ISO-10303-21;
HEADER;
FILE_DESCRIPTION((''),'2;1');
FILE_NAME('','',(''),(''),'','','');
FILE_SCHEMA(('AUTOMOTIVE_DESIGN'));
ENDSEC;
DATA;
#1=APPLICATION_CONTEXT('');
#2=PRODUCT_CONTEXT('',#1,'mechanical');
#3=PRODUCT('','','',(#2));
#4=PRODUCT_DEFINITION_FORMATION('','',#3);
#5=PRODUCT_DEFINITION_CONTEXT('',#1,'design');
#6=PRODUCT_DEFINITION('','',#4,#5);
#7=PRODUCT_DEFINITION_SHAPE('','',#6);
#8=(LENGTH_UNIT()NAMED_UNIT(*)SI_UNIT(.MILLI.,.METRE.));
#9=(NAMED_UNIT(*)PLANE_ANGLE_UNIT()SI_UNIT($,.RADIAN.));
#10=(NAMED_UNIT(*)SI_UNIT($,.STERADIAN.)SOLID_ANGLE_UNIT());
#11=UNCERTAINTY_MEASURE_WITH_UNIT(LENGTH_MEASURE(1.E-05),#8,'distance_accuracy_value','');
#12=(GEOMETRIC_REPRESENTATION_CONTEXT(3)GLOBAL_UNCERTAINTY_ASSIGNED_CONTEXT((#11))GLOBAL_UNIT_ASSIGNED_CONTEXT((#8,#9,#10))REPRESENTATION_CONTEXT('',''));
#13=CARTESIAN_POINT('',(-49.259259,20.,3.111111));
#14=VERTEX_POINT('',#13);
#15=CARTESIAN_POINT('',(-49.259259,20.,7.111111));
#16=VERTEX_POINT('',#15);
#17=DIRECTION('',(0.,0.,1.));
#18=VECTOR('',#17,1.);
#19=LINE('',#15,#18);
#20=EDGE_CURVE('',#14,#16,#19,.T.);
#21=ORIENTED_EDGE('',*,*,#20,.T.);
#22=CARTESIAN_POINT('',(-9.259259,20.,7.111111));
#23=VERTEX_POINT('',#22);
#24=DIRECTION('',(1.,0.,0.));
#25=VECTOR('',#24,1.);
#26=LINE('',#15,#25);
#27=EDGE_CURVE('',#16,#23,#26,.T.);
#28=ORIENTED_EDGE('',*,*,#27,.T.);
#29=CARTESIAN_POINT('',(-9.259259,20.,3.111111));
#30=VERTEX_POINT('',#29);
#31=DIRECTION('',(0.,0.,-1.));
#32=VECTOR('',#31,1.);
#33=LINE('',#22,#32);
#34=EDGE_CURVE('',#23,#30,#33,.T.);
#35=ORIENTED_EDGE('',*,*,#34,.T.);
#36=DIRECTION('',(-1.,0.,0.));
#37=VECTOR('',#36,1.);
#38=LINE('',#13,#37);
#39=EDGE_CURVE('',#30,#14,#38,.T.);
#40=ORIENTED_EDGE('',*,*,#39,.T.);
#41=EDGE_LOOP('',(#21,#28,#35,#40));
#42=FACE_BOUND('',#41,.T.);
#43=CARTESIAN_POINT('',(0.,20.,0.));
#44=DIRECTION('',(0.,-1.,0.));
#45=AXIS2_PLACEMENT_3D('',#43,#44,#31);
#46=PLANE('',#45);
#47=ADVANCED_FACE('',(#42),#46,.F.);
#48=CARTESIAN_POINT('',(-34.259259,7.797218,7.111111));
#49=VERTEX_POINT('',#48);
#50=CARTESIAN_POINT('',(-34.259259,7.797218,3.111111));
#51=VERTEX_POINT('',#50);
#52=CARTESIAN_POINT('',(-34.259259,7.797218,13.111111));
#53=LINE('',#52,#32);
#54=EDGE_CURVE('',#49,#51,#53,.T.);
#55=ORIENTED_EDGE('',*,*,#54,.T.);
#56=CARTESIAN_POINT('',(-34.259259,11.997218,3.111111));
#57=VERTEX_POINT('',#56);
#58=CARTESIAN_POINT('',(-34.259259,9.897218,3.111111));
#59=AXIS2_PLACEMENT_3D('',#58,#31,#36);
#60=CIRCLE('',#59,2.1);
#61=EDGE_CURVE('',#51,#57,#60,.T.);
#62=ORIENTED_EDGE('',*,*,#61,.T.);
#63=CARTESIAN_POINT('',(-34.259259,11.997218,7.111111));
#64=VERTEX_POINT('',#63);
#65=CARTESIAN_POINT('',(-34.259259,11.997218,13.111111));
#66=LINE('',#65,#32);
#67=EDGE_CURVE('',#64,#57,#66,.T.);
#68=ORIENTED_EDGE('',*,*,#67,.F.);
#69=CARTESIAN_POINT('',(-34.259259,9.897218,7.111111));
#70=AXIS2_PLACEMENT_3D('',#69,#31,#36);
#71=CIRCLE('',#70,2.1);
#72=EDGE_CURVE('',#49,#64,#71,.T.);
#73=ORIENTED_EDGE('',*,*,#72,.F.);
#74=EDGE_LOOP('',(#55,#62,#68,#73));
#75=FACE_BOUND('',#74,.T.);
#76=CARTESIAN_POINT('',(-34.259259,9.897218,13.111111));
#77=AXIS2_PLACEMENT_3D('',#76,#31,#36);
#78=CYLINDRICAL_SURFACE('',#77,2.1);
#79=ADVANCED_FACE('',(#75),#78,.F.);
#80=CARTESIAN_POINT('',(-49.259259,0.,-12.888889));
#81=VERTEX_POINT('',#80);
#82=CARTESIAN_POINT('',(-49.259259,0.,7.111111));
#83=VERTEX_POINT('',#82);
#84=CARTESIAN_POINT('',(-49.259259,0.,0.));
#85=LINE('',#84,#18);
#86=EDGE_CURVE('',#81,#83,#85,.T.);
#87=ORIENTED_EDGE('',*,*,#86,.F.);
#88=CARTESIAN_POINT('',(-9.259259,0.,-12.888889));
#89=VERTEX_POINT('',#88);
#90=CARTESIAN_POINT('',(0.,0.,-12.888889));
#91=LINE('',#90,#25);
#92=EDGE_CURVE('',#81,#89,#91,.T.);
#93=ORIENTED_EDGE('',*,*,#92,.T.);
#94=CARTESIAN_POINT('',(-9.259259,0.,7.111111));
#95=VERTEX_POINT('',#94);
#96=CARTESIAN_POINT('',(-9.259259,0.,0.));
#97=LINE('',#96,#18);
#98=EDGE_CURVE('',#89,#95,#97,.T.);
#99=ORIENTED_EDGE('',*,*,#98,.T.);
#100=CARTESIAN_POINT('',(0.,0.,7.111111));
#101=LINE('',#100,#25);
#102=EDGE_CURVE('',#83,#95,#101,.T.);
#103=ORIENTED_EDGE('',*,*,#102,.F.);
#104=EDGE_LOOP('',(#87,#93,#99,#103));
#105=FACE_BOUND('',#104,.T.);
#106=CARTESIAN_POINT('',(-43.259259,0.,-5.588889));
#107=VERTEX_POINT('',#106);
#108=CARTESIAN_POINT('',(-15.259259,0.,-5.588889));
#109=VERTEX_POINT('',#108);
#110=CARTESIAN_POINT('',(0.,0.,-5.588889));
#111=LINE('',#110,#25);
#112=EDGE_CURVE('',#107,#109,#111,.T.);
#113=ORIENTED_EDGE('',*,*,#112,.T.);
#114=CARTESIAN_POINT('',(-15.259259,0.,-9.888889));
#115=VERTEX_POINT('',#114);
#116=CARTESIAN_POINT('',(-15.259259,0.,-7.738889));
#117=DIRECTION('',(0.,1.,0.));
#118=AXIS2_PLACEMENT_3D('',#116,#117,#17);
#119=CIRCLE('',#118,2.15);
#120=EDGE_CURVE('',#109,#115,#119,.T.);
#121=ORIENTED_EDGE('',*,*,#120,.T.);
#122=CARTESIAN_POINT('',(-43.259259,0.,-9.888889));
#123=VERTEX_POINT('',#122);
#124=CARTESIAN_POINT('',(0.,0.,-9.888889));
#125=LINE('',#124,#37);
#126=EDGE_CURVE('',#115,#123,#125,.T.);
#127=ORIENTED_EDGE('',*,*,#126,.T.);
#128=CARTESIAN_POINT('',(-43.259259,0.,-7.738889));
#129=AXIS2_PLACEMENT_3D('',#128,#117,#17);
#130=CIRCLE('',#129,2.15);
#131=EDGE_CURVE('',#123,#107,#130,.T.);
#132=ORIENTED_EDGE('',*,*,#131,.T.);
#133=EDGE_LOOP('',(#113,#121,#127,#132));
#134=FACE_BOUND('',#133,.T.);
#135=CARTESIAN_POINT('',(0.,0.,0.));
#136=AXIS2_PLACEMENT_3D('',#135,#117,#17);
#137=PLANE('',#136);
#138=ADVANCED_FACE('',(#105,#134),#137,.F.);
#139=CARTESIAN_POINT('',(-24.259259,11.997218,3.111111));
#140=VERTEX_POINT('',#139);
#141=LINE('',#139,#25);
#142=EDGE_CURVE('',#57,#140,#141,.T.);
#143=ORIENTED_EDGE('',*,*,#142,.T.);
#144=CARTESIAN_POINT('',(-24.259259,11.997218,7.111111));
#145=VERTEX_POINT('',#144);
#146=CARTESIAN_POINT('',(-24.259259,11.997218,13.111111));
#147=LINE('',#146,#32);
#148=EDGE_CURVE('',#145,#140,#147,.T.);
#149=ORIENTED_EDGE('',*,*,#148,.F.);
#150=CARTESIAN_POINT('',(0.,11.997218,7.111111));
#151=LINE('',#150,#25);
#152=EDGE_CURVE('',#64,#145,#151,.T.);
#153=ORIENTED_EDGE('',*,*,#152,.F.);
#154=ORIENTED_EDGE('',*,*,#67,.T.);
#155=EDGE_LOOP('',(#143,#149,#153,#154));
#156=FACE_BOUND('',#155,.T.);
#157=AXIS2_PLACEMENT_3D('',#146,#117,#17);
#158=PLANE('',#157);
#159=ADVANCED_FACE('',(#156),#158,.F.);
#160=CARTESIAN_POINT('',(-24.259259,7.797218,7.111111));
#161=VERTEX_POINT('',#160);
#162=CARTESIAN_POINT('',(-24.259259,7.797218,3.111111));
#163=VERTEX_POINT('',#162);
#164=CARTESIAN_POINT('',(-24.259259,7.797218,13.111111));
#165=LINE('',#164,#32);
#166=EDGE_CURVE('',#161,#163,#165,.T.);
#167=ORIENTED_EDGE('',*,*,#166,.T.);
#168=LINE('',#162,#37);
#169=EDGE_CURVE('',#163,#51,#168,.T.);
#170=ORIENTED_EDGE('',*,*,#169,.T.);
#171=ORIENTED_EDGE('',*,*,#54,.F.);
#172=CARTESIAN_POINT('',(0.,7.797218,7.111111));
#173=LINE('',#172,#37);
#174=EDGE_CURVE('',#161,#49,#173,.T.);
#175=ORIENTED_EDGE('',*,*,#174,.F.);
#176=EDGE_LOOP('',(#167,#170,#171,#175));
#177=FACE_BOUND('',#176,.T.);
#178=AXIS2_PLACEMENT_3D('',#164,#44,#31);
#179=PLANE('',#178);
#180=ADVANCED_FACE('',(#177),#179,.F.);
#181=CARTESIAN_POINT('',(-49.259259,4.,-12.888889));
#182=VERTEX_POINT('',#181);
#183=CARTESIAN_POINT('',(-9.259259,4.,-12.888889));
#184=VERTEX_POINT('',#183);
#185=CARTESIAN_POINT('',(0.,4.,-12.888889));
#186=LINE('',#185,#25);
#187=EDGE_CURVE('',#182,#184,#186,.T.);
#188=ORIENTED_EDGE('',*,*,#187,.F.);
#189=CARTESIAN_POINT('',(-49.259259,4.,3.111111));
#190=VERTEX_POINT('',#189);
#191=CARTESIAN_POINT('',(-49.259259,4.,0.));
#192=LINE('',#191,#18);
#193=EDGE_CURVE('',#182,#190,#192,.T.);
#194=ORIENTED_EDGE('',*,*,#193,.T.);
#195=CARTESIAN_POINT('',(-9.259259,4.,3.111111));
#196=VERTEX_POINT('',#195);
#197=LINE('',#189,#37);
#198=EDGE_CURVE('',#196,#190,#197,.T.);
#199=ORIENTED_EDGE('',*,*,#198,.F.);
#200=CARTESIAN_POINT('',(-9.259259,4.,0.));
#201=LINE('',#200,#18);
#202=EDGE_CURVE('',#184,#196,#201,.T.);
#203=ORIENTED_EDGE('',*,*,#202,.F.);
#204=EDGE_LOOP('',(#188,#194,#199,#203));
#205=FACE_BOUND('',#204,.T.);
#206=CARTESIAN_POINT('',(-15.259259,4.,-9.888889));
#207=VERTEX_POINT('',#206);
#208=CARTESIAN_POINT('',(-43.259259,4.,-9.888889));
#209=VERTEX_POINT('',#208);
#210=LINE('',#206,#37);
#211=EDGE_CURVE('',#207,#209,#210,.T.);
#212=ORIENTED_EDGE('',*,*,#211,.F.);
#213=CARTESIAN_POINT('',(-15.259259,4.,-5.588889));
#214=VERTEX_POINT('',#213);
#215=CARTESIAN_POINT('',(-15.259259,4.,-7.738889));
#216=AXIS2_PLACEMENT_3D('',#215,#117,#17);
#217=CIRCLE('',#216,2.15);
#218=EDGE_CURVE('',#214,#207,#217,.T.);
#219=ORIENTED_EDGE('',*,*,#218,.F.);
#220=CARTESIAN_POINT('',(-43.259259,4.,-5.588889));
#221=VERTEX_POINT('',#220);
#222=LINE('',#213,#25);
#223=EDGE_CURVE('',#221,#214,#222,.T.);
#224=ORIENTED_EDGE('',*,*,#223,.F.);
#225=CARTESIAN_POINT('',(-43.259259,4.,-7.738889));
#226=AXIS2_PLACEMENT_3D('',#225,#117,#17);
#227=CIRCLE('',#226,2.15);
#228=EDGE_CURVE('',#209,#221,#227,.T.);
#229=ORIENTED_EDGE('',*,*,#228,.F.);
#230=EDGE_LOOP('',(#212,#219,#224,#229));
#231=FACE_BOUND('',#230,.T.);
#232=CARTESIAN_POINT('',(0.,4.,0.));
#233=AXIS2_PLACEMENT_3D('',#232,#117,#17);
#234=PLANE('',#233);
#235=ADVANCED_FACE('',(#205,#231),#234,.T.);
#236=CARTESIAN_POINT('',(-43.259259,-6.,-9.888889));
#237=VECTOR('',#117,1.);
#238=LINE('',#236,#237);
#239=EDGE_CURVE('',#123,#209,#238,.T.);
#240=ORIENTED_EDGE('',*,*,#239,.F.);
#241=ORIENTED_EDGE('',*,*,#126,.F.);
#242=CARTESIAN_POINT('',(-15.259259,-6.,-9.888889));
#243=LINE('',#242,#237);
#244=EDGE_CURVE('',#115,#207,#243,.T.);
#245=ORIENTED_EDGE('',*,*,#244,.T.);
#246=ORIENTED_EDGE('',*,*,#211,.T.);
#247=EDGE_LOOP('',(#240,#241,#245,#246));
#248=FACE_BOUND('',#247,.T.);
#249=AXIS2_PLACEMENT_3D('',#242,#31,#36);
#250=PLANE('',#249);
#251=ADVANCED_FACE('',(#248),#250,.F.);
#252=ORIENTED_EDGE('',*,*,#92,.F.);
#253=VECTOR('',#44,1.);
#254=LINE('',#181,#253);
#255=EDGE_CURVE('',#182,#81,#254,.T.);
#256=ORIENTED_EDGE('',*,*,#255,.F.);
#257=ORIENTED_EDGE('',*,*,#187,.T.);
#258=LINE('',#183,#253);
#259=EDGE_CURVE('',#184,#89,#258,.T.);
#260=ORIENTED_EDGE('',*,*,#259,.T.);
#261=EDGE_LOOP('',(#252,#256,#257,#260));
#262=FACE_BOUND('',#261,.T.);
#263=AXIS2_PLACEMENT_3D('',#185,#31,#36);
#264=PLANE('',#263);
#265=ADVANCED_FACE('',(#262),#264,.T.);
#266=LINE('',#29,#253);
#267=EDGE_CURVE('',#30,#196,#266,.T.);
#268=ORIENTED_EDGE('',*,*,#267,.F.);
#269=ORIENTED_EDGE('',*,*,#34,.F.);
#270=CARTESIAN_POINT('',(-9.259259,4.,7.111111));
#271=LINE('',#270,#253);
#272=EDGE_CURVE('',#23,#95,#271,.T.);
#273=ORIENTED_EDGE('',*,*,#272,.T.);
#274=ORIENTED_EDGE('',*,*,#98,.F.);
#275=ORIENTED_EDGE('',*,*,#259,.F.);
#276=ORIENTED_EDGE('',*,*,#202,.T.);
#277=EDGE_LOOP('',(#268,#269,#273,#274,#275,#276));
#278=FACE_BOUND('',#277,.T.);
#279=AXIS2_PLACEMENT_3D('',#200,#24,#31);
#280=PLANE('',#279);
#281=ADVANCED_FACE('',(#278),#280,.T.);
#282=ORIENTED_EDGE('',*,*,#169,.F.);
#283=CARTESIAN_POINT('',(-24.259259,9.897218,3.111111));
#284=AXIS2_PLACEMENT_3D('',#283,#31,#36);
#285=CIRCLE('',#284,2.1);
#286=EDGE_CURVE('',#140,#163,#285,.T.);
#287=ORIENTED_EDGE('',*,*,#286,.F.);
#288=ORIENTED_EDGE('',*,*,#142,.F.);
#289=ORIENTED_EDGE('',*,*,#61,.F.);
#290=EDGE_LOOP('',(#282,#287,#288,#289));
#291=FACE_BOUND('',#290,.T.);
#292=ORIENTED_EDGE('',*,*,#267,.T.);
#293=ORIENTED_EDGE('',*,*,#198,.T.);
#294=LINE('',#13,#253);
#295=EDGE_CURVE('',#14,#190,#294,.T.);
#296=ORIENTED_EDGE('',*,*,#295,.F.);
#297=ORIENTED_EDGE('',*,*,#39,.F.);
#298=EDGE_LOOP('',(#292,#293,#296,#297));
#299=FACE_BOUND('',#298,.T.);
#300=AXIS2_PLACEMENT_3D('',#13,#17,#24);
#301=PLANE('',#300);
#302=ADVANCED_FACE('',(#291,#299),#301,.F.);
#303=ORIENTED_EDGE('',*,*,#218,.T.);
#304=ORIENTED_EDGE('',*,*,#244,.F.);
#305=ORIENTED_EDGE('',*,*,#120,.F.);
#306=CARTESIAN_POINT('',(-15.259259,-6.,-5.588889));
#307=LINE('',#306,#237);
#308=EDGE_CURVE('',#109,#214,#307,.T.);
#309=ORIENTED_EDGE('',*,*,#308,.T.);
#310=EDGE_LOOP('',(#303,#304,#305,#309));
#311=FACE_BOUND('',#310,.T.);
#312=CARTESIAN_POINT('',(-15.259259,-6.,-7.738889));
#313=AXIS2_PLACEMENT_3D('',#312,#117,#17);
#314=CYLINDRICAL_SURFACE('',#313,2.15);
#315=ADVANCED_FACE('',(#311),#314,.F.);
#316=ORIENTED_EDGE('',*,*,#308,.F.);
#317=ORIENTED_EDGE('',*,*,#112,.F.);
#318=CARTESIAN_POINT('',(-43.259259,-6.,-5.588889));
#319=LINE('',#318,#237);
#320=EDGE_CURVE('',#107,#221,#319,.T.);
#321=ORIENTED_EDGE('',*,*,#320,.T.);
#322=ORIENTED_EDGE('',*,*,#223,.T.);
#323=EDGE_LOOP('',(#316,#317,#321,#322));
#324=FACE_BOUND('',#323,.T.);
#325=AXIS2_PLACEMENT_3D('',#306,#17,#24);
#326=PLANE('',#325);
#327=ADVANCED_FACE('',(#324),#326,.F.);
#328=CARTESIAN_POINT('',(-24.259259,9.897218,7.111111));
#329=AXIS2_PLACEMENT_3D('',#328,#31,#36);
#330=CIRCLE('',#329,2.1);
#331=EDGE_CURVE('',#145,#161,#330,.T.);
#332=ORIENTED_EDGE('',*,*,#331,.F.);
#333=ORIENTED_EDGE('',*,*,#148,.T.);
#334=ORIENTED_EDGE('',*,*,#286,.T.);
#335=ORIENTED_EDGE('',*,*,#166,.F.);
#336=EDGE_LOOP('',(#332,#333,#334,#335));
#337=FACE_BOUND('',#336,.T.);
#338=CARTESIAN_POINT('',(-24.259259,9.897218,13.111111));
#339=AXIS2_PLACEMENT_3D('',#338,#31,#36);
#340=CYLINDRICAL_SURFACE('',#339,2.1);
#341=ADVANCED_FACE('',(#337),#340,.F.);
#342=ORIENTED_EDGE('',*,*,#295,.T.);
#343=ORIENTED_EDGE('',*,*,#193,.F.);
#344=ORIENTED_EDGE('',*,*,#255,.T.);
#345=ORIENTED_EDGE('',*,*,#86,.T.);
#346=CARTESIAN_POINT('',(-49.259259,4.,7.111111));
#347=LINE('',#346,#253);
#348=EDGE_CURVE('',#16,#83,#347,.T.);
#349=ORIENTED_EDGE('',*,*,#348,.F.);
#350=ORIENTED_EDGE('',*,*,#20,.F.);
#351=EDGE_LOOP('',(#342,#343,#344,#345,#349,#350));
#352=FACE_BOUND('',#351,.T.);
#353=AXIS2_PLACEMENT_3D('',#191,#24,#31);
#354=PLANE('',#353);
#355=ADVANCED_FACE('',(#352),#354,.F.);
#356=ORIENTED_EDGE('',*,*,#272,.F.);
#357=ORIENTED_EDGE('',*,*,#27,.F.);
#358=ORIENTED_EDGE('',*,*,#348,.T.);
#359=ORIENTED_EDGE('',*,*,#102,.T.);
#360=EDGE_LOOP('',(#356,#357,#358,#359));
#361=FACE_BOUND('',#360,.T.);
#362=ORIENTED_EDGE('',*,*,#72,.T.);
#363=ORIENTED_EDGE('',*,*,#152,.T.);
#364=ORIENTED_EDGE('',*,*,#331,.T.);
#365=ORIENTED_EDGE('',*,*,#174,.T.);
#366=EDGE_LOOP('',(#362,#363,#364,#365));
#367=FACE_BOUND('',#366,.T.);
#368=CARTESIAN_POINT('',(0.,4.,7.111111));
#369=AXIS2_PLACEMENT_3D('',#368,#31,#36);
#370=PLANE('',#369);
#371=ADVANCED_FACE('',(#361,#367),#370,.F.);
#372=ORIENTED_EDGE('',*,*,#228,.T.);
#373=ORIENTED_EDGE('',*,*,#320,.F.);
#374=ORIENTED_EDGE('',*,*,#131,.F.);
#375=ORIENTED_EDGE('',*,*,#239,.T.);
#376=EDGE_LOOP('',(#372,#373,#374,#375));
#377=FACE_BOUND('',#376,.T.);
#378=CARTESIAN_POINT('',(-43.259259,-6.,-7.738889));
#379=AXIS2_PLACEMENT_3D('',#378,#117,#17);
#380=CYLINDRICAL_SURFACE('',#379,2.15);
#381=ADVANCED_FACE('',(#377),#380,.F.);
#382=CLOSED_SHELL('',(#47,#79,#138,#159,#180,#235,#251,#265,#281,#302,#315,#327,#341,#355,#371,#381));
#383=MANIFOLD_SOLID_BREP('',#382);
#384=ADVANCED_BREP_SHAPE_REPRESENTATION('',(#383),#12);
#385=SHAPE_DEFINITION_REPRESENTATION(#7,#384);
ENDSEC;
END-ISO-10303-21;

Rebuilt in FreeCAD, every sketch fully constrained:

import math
import FreeCAD as App
import Part
import Sketcher
from FreeCAD import Vector


def add_polygon(sketch, points):
    """Adds a closed chain of lines whose ends are joined by coincident constraints."""
    first, n = sketch.GeometryCount, len(points)
    for a, b in zip(points, points[1:] + points[:1]):
        sketch.addGeometry(Part.LineSegment(App.Vector(*a, 0), App.Vector(*b, 0)), False)
    for i in range(n):
        sketch.addConstraint(Sketcher.Constraint("Coincident", first + i, 2, first + (i + 1) % n, 1))

doc = App.newDocument("Part")
body = doc.addObject("PartDesign::Body", "Body")

# Sketch on XZ plane
sketch1 = body.newObject("Sketcher::SketchObject", "Sketch")
sketch1.AttachmentSupport = (doc.getObject("XZ_Plane"), [""])
sketch1.MapMode = "FlatFace"
add_polygon(sketch1, [(-49, -13), (-49, 7), (-9, 7), (-9, -13)])  # lines 0-3
sketch1.addConstraint(Sketcher.Constraint("Vertical", 0))
sketch1.addConstraint(Sketcher.Constraint("Horizontal", 1))
sketch1.addConstraint(Sketcher.Constraint("Vertical", 2))
sketch1.addConstraint(Sketcher.Constraint("Horizontal", 3))
sketch1.addConstraint(Sketcher.Constraint("DistanceX", 1, 1, 1, 2, 40.0))
sketch1.addConstraint(Sketcher.Constraint("DistanceY", 0, 1, 0, 2, 20.0))
sketch1.addConstraint(Sketcher.Constraint("DistanceX", 0, 2, -1, 1, 49.259259))
sketch1.addConstraint(Sketcher.Constraint("DistanceY", -1, 1, 0, 2, 7.111111))
pad1 = body.newObject("PartDesign::Pad", "Pad")
pad1.Profile = sketch1
pad1.Length = 4
pad1.Reversed = True

# Sketch on XZ plane
sketch2 = body.newObject("Sketcher::SketchObject", "Sketch001")
sketch2.AttachmentSupport = (doc.getObject("XZ_Plane"), [""])
sketch2.MapMode = "FlatFace"
sketch2.AttachmentOffset = App.Placement(Vector(0, 0, -4), App.Rotation())
add_polygon(sketch2, [(-49.3, 3.1), (-49.3, 7.1), (-9.3, 7.1), (-9.3, 3.1)])  # lines 0-3
sketch2.addConstraint(Sketcher.Constraint("Vertical", 0))
sketch2.addConstraint(Sketcher.Constraint("Horizontal", 1))
sketch2.addConstraint(Sketcher.Constraint("Vertical", 2))
sketch2.addConstraint(Sketcher.Constraint("Horizontal", 3))
sketch2.addConstraint(Sketcher.Constraint("DistanceX", 1, 1, 1, 2, 40.0))
sketch2.addConstraint(Sketcher.Constraint("DistanceY", 0, 1, 0, 2, 4.0))
sketch2.addConstraint(Sketcher.Constraint("DistanceX", 0, 2, -1, 1, 49.259259))
sketch2.addConstraint(Sketcher.Constraint("DistanceY", -1, 1, 0, 2, 7.111111))
pad2 = body.newObject("PartDesign::Pad", "Pad001")
pad2.Profile = sketch2
pad2.Length = 16
pad2.Reversed = True

# Sketch on XZ plane
sketch3 = body.newObject("Sketcher::SketchObject", "Sketch002")
sketch3.AttachmentSupport = (doc.getObject("XZ_Plane"), [""])
sketch3.MapMode = "FlatFace"
sketch3.AttachmentOffset = App.Placement(Vector(0, 0, -4), App.Rotation())
sketch3.addGeometry(Part.LineSegment(Vector(-43.3, -5.6, 0), Vector(-15.3, -5.6, 0)), False)
sketch3.addGeometry(Part.ArcOfCircle(Part.Circle(Vector(-15.3, -7.7, 0), Vector(0, 0, 1), 2.1), math.radians(-90), math.radians(90)), False)
sketch3.addGeometry(Part.LineSegment(Vector(-15.3, -9.9, 0), Vector(-43.3, -9.9, 0)), False)
sketch3.addGeometry(Part.ArcOfCircle(Part.Circle(Vector(-43.3, -7.7, 0), Vector(0, 0, 1), 2.1), math.radians(90), math.radians(270)), False)
sketch3.addConstraint(Sketcher.Constraint("Tangent", 0, 2, 1, 2))
sketch3.addConstraint(Sketcher.Constraint("Tangent", 1, 1, 2, 1))
sketch3.addConstraint(Sketcher.Constraint("Tangent", 2, 2, 3, 2))
sketch3.addConstraint(Sketcher.Constraint("Tangent", 3, 1, 0, 1))
sketch3.addConstraint(Sketcher.Constraint("Horizontal", 0))
sketch3.addConstraint(Sketcher.Constraint("Horizontal", 2))
sketch3.addConstraint(Sketcher.Constraint("DistanceX", 0, 1, 0, 2, 28.0))
sketch3.addConstraint(Sketcher.Constraint("Radius", 1, 2.15))
sketch3.addConstraint(Sketcher.Constraint("DistanceX", 1, 3, -1, 1, 15.259259))
sketch3.addConstraint(Sketcher.Constraint("DistanceY", 1, 3, -1, 1, 7.738889))
pocket1 = body.newObject("PartDesign::Pocket", "Pocket")
pocket1.Profile = sketch3
pocket1.Length = 10
pocket1.Reversed = True

# Sketch on XY plane
sketch4 = body.newObject("Sketcher::SketchObject", "Sketch003")
sketch4.AttachmentSupport = (doc.getObject("XY_Plane"), [""])
sketch4.MapMode = "FlatFace"
sketch4.AttachmentOffset = App.Placement(Vector(0, 0, 3.111111), App.Rotation())
sketch4.addGeometry(Part.LineSegment(Vector(-34.3, 12, 0), Vector(-24.3, 12, 0)), False)
sketch4.addGeometry(Part.ArcOfCircle(Part.Circle(Vector(-24.3, 9.9, 0), Vector(0, 0, 1), 2.1), math.radians(-90), math.radians(90)), False)
sketch4.addGeometry(Part.LineSegment(Vector(-24.3, 7.8, 0), Vector(-34.3, 7.8, 0)), False)
sketch4.addGeometry(Part.ArcOfCircle(Part.Circle(Vector(-34.3, 9.9, 0), Vector(0, 0, 1), 2.1), math.radians(90), math.radians(270)), False)
sketch4.addConstraint(Sketcher.Constraint("Tangent", 0, 2, 1, 2))
sketch4.addConstraint(Sketcher.Constraint("Tangent", 1, 1, 2, 1))
sketch4.addConstraint(Sketcher.Constraint("Tangent", 2, 2, 3, 2))
sketch4.addConstraint(Sketcher.Constraint("Tangent", 3, 1, 0, 1))
sketch4.addConstraint(Sketcher.Constraint("Horizontal", 0))
sketch4.addConstraint(Sketcher.Constraint("Horizontal", 2))
sketch4.addConstraint(Sketcher.Constraint("Radius", 1, 2.1))
sketch4.addConstraint(Sketcher.Constraint("DistanceX", 0, 1, 0, 2, 10.0))
sketch4.addConstraint(Sketcher.Constraint("DistanceX", 1, 3, -1, 1, 24.259259))
sketch4.addConstraint(Sketcher.Constraint("DistanceY", -1, 1, 1, 3, 9.897218))
pocket2 = body.newObject("PartDesign::Pocket", "Pocket001")
pocket2.Profile = sketch4
pocket2.Length = 10
pocket2.Reversed = True

doc.recompute()
